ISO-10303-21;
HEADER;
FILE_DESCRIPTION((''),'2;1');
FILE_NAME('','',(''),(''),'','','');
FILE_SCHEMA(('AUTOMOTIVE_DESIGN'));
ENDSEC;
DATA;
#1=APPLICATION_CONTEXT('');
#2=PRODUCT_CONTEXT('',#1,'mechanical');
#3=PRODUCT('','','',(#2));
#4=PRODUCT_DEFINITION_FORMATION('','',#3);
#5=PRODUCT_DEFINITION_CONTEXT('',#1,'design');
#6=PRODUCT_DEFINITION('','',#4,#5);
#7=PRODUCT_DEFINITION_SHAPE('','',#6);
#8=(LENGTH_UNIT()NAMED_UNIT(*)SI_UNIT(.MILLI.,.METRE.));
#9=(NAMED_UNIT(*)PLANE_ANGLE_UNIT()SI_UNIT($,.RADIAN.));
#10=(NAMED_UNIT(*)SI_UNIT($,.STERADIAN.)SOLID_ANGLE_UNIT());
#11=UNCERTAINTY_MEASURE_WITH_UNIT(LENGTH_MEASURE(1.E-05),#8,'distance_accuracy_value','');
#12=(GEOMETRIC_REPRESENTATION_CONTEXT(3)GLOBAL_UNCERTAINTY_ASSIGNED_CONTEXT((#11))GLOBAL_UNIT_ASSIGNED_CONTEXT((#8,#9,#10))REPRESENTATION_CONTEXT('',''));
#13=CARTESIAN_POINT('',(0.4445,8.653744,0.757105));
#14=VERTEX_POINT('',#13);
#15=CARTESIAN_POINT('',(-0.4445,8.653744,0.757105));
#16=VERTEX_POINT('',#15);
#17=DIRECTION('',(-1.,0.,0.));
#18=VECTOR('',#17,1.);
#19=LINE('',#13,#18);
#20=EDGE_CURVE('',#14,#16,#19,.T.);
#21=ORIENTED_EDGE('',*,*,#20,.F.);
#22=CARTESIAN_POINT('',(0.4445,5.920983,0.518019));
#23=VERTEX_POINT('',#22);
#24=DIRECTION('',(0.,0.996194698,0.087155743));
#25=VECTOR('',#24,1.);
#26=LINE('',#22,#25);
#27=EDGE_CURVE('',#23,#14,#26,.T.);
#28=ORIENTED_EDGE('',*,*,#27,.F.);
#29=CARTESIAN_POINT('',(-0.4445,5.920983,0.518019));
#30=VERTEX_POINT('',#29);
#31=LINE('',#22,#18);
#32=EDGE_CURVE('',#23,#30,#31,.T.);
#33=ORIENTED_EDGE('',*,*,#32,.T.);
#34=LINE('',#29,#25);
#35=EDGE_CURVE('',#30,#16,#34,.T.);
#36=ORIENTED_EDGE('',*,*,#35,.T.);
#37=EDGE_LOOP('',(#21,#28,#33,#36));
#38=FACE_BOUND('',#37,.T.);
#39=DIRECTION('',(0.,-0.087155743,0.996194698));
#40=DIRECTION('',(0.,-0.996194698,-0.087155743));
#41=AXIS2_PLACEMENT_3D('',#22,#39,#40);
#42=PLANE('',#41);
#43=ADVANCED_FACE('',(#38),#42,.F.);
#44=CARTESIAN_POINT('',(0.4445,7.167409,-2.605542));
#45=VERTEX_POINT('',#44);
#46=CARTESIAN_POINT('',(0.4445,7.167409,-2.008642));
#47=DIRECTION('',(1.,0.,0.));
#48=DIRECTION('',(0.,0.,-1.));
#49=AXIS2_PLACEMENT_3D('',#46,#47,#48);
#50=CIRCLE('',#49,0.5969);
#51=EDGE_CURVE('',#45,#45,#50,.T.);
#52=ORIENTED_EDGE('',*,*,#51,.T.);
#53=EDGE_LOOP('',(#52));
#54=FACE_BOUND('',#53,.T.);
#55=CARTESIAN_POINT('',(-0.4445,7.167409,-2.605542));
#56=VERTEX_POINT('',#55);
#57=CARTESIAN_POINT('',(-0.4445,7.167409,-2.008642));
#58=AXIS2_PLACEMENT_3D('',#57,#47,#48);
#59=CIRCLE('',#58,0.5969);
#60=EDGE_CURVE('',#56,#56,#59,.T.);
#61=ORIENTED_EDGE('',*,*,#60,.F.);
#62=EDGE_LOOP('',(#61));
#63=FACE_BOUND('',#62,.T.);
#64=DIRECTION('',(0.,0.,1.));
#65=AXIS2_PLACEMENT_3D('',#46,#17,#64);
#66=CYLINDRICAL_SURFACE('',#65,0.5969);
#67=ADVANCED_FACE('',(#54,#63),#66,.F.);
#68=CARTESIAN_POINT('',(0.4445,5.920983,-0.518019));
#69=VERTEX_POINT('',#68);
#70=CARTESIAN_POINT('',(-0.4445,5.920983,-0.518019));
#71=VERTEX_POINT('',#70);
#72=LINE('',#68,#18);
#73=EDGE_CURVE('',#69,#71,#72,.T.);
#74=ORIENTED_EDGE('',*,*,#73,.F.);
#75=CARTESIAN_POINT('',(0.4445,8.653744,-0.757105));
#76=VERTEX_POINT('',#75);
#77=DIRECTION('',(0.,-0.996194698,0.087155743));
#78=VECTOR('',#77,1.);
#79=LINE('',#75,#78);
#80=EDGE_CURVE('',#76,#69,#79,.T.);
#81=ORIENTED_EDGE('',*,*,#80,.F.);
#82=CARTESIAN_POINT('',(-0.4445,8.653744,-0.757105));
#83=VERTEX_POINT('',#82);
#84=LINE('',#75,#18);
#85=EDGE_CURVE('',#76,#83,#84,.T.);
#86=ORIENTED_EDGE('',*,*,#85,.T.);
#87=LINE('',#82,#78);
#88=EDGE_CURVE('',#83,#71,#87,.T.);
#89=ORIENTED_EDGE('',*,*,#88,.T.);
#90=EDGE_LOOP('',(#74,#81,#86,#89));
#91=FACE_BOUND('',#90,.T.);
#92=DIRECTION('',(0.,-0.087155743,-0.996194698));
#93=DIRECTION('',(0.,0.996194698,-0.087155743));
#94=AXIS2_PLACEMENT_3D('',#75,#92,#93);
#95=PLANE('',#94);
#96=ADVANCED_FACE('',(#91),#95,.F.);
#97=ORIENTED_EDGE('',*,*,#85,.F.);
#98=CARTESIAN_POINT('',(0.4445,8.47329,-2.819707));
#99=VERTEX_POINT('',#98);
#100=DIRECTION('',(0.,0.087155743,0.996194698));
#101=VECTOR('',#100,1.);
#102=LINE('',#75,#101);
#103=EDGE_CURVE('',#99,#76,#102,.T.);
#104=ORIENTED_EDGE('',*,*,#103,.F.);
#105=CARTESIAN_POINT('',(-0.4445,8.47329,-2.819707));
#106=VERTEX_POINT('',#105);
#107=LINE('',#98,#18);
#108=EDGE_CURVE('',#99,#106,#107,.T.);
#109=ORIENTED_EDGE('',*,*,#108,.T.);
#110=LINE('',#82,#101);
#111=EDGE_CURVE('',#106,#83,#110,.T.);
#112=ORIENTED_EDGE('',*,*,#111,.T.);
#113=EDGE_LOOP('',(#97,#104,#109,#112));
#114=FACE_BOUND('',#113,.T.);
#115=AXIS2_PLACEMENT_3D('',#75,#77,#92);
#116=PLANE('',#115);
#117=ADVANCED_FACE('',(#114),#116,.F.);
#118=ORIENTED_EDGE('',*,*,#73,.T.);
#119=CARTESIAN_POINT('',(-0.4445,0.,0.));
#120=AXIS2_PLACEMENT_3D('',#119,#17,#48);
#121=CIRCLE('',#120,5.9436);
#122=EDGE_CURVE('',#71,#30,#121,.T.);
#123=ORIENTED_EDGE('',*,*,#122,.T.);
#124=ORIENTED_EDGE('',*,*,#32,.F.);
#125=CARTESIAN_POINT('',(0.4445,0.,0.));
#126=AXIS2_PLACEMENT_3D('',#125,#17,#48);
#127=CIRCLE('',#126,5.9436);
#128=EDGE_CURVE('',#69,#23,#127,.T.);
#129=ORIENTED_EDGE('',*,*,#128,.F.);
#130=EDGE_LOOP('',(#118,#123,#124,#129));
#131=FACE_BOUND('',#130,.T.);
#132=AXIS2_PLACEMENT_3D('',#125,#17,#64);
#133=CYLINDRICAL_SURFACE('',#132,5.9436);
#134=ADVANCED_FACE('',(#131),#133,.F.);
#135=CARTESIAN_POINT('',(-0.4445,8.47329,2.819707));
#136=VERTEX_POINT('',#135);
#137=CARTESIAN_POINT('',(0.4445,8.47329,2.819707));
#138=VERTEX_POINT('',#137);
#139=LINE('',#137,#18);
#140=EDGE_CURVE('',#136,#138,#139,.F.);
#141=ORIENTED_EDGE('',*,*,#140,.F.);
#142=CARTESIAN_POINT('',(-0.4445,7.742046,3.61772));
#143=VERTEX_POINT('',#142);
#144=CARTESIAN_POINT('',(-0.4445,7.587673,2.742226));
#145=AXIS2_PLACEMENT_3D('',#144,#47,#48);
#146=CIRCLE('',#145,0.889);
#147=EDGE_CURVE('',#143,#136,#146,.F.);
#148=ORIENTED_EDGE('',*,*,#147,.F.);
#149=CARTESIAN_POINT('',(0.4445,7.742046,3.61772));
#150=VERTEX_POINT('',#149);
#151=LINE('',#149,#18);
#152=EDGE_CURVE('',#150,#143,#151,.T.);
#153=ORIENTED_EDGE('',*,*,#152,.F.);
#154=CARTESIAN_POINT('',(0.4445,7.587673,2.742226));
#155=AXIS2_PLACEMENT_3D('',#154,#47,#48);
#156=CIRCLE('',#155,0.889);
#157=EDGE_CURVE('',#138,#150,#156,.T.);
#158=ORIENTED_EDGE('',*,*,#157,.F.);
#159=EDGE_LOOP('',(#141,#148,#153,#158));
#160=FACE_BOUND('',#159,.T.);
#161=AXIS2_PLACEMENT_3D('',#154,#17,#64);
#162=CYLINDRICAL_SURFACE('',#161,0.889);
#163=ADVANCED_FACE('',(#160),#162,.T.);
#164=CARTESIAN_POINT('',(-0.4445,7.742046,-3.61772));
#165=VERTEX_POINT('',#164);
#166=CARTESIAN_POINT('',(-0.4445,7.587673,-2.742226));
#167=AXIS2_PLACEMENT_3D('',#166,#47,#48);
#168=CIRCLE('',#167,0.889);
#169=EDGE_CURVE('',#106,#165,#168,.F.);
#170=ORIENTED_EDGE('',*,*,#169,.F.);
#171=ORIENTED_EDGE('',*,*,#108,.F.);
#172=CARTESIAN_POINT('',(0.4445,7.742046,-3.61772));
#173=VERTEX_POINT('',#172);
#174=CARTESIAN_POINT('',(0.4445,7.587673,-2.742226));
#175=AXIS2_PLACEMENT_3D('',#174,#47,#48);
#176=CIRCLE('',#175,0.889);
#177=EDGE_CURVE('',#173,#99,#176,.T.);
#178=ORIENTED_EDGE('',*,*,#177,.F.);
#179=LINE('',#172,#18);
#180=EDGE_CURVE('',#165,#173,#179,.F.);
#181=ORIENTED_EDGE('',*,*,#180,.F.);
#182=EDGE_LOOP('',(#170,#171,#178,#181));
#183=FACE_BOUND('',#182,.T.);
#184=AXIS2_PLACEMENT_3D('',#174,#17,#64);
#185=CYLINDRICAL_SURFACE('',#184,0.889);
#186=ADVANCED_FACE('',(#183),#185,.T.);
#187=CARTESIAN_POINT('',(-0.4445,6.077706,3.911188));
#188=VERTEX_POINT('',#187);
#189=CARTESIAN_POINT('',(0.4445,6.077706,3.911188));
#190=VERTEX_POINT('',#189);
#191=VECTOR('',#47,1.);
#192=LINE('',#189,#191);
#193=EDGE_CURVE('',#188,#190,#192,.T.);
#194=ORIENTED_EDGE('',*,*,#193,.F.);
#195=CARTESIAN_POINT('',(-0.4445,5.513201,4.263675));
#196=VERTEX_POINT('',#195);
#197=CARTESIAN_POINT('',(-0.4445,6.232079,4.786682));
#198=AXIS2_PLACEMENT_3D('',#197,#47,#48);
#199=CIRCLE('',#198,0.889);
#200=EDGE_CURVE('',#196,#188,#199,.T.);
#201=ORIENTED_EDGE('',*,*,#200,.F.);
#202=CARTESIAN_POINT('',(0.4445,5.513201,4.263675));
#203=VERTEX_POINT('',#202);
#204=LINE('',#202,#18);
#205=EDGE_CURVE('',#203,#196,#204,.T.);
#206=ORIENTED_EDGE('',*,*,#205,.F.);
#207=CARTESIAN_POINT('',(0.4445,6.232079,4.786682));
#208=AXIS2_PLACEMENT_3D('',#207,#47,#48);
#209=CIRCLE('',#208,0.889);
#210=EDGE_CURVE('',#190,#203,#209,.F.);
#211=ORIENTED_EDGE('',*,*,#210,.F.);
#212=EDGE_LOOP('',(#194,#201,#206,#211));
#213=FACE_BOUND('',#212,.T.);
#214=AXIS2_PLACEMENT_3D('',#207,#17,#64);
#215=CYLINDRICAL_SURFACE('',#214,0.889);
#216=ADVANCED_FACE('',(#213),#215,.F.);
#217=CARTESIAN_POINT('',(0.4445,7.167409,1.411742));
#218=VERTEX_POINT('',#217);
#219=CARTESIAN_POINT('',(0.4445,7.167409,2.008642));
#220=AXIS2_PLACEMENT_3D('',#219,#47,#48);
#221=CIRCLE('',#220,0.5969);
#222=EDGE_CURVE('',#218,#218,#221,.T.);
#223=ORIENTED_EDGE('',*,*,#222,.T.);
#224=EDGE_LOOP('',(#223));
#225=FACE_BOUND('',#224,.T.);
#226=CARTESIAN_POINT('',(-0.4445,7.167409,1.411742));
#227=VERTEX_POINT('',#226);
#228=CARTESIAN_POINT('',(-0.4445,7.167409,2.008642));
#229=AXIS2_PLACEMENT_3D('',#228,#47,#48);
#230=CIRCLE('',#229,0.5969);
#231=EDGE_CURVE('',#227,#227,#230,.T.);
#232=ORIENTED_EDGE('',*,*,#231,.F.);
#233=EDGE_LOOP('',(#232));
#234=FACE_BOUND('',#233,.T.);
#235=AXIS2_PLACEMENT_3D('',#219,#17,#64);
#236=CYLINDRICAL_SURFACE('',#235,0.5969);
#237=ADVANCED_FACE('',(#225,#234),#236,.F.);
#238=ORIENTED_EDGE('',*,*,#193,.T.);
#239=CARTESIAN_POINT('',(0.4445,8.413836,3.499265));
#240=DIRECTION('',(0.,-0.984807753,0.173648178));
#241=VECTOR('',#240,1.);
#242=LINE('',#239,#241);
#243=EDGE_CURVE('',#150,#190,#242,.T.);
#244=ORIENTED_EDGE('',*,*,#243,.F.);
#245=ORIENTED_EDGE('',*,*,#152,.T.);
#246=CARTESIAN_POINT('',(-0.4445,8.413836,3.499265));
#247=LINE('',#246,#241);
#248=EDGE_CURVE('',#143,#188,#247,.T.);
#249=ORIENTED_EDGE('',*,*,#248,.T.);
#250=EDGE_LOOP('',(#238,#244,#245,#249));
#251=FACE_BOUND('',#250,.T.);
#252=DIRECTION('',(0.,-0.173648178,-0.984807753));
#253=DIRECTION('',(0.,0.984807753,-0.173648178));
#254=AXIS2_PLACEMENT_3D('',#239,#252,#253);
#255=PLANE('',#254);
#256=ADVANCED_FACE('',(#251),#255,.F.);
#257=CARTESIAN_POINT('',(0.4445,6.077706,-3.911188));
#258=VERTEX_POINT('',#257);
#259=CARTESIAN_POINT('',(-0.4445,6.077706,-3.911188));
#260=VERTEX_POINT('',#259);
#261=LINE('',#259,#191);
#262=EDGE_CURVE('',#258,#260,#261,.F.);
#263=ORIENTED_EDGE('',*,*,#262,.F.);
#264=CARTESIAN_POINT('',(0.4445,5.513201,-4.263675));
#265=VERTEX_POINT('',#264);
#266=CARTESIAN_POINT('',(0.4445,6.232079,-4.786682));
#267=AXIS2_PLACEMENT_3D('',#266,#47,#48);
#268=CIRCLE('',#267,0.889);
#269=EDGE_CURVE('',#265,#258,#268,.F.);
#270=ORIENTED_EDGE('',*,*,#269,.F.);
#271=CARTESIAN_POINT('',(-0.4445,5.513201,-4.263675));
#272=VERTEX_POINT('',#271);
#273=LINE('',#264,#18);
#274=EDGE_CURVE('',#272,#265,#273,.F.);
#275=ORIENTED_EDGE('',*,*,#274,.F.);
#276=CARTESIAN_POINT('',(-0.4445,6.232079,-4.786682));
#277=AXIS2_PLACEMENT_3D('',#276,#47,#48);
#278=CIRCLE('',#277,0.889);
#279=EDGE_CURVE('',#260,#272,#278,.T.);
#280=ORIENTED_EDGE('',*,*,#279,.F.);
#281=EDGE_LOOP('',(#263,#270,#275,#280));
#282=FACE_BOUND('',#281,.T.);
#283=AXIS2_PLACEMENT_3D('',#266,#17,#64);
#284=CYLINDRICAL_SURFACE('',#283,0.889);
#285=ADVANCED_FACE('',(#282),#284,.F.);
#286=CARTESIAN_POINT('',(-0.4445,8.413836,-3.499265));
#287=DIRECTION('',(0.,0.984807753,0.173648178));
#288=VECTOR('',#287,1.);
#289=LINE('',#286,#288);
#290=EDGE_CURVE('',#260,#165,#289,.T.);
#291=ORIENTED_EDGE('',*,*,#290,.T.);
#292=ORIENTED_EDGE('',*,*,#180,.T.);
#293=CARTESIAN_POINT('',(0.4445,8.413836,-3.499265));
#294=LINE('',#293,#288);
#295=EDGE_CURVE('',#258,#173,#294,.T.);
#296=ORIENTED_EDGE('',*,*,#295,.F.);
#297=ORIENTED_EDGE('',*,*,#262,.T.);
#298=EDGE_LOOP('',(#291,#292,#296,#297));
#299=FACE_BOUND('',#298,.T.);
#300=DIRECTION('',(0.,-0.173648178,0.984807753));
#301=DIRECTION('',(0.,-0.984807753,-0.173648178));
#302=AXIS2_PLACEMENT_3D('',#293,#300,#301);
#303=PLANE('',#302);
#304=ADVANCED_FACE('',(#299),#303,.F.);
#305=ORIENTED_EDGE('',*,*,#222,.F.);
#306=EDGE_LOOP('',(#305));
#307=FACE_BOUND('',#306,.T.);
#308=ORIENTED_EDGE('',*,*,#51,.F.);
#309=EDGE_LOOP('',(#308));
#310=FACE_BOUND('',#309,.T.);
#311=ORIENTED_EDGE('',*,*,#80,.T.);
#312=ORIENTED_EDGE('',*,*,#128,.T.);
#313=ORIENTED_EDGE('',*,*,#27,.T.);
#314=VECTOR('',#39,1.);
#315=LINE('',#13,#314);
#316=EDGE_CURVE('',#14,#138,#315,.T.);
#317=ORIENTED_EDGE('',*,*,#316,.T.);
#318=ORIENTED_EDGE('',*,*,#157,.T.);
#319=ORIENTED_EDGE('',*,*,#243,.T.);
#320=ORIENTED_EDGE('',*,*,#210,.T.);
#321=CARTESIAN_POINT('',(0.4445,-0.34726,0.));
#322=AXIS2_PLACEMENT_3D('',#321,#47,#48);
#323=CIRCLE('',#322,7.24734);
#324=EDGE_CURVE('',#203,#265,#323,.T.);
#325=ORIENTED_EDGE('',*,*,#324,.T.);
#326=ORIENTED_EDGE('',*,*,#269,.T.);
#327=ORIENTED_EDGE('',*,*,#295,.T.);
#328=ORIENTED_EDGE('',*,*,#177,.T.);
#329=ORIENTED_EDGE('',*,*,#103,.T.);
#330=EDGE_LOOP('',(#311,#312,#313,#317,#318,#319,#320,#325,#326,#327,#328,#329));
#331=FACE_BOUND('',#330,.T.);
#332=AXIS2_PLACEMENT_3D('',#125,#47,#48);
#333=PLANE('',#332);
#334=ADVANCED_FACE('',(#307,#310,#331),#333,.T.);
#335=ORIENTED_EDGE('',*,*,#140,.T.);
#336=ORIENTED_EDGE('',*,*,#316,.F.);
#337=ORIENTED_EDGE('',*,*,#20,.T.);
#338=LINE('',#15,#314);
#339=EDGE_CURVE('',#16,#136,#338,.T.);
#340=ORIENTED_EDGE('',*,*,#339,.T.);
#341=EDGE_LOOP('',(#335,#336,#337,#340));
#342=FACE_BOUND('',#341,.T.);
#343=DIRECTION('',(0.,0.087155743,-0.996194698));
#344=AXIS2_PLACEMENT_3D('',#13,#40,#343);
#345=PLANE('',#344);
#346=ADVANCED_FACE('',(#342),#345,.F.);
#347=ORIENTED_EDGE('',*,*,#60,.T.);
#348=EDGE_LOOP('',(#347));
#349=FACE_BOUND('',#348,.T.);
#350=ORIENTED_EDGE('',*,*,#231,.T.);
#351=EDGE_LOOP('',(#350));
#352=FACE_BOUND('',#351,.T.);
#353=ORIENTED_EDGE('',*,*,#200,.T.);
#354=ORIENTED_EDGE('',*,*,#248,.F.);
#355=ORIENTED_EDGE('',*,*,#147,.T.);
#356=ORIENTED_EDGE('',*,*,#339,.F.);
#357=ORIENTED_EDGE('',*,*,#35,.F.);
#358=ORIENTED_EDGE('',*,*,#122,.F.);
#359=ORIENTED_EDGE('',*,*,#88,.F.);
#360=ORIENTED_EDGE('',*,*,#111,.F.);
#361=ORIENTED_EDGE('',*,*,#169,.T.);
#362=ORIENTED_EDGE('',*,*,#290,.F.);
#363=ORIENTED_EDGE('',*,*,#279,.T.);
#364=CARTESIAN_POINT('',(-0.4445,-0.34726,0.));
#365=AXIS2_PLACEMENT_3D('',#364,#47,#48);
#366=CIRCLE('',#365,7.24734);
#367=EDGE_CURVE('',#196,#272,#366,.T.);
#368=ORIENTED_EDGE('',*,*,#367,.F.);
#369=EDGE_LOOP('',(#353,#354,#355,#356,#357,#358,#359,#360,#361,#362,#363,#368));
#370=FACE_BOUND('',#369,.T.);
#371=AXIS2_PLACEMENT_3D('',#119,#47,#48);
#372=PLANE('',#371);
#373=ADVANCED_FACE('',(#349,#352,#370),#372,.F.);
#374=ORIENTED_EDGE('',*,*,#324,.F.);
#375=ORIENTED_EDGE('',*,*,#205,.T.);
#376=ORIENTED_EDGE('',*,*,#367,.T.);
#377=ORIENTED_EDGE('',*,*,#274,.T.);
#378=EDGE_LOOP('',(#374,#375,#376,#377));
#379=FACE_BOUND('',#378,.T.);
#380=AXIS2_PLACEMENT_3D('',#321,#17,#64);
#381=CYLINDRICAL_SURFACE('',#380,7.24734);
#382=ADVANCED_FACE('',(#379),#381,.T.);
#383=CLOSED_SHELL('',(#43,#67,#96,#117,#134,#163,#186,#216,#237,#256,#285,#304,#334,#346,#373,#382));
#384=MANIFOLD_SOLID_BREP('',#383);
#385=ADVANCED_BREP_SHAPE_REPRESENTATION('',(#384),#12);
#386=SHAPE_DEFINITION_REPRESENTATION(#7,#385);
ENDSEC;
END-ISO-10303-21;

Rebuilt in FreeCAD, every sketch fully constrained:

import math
import FreeCAD as App
import Part
import Sketcher
Q = App.Units.Quantity


def edges_at(feature, points):
    """Names of the edges that pass closest to the given points."""
    edges = feature.Shape.Edges
    near = lambda p: min(range(len(edges)), key=lambda i: edges[i].distToShape(Part.Vertex(*p))[0])
    return sorted({f"Edge{near(p) + 1}" for p in points})

doc = App.newDocument("Part")
body = doc.addObject("PartDesign::Body", "Body")

# Sketch on YZ plane
sketch1 = doc.addObject("Sketcher::SketchObject", "Sketch")
body.addObject(sketch1)
sketch1.AttachmentSupport = (doc.YZ_Plane, [""])
sketch1.MapMode = "FlatFace"
sketch1.addGeometry([
    Part.LineSegment(App.Vector(5.9, 0.5, 0), App.Vector(8.7, 0.8, 0)),  # 0
    Part.LineSegment(App.Vector(8.7, 0.8, 0), App.Vector(8.4, 3.5, 0)),  # 1
    Part.LineSegment(App.Vector(8.4, 3.5, 0), App.Vector(5.7, 4, 0)),  # 2
    Part.ArcOfCircle(Part.Circle(App.Vector(-0.3, 0, 0), App.Vector(0, 0, 1), 7.2), math.radians(33), math.radians(327)),  # 3
    Part.LineSegment(App.Vector(5.7, -4, 0), App.Vector(8.4, -3.5, 0)),  # 4
    Part.LineSegment(App.Vector(8.4, -3.5, 0), App.Vector(8.7, -0.8, 0)),  # 5
    Part.LineSegment(App.Vector(8.7, -0.8, 0), App.Vector(5.9, -0.5, 0)),  # 6
    Part.ArcOfCircle(Part.Circle(App.Vector(0, 0, 0), App.Vector(0, 0, 1), 5.9), math.radians(5), math.radians(355)),  # 7
    Part.Circle(App.Vector(7.2, 2, 0), App.Vector(0, 0, 1), 0.6),  # 8
    Part.Circle(App.Vector(7.2, -2, 0), App.Vector(0, 0, 1), 0.6),  # 9
], False)
sketch1.addConstraint([
    Sketcher.Constraint("Coincident", 0, 2, 1, 1),
    Sketcher.Constraint("Coincident", 1, 2, 2, 1),
    Sketcher.Constraint("Coincident", 2, 2, 3, 1),
    Sketcher.Constraint("Coincident", 3, 2, 4, 1),
    Sketcher.Constraint("Coincident", 4, 2, 5, 1),
    Sketcher.Constraint("Coincident", 5, 2, 6, 1),
    Sketcher.Constraint("Coincident", 6, 2, 7, 2),
    Sketcher.Constraint("Coincident", 7, 1, 0, 1),
    Sketcher.Constraint("Coincident", 7, 3, -1, 1),
    Sketcher.Constraint("Equal", 8, 9),
    Sketcher.Constraint("Symmetric", 8, 3, 9, 3, -1),
    Sketcher.Constraint("Symmetric", 2, 2, 3, 2, -1),
    Sketcher.Constraint("Symmetric", 1, 2, 4, 2, -1),
    Sketcher.Constraint("Symmetric", 0, 2, 5, 2, -1),
    Sketcher.Constraint("Perpendicular", 0, 1),
    Sketcher.Constraint("Perpendicular", 5, 6),
    Sketcher.Constraint("Equal", 0, 2),
    Sketcher.Constraint("Diameter", 8, Q("0.047 in")),
    Sketcher.Constraint("Angle", 0, Q("5 deg")),
    Sketcher.Constraint("Angle", 2, Q("170 deg")),
    Sketcher.Constraint("Radius", 7, Q("0.234 in")),
    Sketcher.Constraint("Distance", 0, Q("0.108 in")),
    Sketcher.Constraint("Radius", 3, 7.24734),
    Sketcher.Constraint("DistanceX", 3, 3, -1, 1, 0.34726),
    Sketcher.Constraint("DistanceX", -1, 1, 8, 3, 7.167409),
    Sketcher.Constraint("DistanceY", 6, 2, -1, 1, 0.518019),
    Sketcher.Constraint("DistanceY", 9, 3, 2, 2, 5.984259),
])
pad1 = doc.addObject("PartDesign::Pad", "Pad")
body.addObject(pad1)
pad1.Profile = sketch1
pad1.Length = Q("0.035 in")
pad1.Midplane = True
doc.recompute()

fillet = doc.addObject("PartDesign::Fillet", "Fillet")
body.addObject(fillet)
fillet.Base = (pad1, edges_at(pad1, [
    (0, 8.414, -3.499),
    (0, 5.712, -3.976),
    (0, 5.712, 3.976),
    (0, 8.414, 3.499),
]))
fillet.Radius = Q("0.035 in")

doc.recompute()
